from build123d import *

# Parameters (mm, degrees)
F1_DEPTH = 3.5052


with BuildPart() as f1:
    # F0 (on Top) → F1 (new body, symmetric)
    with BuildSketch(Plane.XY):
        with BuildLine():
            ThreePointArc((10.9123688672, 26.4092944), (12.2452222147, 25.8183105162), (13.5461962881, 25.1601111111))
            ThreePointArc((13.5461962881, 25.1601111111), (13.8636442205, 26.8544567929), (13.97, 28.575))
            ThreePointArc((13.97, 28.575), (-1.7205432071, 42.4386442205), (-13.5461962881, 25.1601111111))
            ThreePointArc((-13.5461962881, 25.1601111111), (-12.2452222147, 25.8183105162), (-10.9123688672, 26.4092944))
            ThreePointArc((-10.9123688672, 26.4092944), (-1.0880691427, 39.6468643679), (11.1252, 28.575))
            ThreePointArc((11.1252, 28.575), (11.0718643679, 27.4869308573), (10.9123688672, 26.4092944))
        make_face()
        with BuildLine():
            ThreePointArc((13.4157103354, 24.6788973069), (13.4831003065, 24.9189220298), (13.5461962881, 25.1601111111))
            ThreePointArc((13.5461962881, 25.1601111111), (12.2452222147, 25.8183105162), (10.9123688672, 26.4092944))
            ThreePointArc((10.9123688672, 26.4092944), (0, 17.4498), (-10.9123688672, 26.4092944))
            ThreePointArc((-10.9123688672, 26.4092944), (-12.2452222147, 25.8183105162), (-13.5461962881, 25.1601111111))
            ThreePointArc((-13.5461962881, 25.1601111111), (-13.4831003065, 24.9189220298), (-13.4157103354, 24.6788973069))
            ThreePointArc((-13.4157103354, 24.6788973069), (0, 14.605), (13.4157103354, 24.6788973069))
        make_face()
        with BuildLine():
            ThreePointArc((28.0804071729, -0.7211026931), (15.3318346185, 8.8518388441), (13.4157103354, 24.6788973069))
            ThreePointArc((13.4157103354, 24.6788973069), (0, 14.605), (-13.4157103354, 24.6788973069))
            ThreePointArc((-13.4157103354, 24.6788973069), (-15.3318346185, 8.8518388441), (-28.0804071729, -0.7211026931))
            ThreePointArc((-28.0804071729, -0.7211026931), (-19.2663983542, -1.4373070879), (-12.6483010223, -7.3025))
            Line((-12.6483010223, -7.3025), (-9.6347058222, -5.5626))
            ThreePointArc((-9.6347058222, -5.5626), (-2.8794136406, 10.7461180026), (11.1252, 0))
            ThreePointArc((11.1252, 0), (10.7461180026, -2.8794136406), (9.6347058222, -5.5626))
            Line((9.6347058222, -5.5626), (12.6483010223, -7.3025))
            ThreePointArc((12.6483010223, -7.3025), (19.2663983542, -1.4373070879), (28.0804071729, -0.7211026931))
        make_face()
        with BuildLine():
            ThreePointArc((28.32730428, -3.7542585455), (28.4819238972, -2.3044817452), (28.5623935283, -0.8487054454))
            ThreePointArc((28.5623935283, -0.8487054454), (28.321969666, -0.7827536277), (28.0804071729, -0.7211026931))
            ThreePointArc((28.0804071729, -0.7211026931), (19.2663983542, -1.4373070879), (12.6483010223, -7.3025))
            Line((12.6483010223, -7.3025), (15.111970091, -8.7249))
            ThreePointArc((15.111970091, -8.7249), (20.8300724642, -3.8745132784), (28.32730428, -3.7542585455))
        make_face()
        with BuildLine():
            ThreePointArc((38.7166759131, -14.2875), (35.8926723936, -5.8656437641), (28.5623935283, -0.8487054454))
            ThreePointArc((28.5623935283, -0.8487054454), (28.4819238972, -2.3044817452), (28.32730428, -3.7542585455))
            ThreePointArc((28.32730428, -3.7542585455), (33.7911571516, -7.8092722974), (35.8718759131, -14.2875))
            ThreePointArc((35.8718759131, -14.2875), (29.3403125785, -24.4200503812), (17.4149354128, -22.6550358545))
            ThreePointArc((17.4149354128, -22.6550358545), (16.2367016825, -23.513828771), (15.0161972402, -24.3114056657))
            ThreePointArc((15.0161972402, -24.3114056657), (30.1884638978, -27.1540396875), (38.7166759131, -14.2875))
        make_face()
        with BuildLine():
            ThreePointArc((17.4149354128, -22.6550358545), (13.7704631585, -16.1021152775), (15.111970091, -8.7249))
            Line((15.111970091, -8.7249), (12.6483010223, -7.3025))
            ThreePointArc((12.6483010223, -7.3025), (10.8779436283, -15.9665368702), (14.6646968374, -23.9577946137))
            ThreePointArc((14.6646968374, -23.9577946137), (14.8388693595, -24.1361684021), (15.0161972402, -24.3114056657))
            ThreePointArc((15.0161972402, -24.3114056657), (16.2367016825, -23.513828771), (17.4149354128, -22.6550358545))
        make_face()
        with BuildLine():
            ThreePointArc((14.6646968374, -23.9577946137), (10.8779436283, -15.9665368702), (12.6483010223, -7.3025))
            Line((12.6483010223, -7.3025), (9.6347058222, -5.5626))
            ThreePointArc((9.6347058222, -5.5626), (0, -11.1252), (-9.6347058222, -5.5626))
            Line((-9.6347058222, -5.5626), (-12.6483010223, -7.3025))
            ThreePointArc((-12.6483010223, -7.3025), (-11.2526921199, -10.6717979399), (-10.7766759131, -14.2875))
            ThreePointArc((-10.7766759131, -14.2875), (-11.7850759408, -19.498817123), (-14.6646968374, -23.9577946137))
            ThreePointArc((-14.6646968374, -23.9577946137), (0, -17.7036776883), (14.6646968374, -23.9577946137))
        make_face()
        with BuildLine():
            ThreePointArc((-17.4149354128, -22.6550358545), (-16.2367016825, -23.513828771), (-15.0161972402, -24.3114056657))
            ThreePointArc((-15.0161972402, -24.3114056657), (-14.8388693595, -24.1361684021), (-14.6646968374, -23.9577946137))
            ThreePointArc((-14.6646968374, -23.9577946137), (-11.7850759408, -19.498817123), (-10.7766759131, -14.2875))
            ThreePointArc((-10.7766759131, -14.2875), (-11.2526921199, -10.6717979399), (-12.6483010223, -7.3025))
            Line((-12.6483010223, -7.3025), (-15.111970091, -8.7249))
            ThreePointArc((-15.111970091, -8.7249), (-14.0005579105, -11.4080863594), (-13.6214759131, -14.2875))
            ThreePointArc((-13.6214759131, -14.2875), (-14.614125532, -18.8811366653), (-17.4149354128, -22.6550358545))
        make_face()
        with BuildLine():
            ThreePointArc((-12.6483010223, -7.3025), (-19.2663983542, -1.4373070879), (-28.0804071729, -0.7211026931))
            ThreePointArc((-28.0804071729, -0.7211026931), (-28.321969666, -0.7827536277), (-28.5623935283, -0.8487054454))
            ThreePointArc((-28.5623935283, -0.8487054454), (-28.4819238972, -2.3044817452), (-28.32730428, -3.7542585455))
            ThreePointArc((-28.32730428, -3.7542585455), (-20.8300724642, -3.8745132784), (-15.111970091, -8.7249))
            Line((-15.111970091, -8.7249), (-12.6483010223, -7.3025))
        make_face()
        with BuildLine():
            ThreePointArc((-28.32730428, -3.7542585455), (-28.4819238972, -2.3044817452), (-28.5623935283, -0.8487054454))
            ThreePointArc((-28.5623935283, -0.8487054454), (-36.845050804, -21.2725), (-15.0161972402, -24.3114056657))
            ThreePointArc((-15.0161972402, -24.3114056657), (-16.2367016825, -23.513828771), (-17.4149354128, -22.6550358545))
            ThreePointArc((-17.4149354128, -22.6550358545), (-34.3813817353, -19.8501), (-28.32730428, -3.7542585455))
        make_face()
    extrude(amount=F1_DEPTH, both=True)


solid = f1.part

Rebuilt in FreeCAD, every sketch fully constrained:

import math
import FreeCAD as App
import Part
import Sketcher
from FreeCAD import Vector
Q = App.Units.Quantity

doc = App.newDocument("Part")
body = doc.addObject("PartDesign::Body", "Body")

# Sketch on XY plane
sketch1 = body.newObject("Sketcher::SketchObject", "Sketch")
sketch1.AttachmentSupport = (doc.getObject("XY_Plane"), [""])
sketch1.MapMode = "FlatFace"
sketch1.addGeometry([
    Part.ArcOfCircle(Part.Circle(Vector(0, 28.575, 0), Vector(0, 0, 1), 13.97), math.radians(-14.149005), math.radians(0)),  # 0
    Part.ArcOfCircle(Part.Circle(Vector(0, 28.575, 0), Vector(0, 0, 1), 13.97), math.radians(0), math.radians(194.149005)),  # 1
    Part.ArcOfCircle(Part.Circle(Vector(0, 28.575, 0), Vector(0, 0, 1), 13.97), math.radians(-165.850995), math.radians(-163.805992)),  # 2
    Part.ArcOfCircle(Part.Circle(Vector(-32.929471, 19.011839, 0), Vector(0, 0, 1), 20.32), math.radians(-76.194008), math.radians(16.194008)),  # 3
    Part.ArcOfCircle(Part.Circle(Vector(-24.746676, -14.2875, 0), Vector(0, 0, 1), 13.97), math.radians(103.805992), math.radians(105.850995)),  # 4
    Part.ArcOfCircle(Part.Circle(Vector(-24.746676, -14.2875, 0), Vector(0, 0, 1), 13.97), math.radians(105.850995), math.radians(314.149005)),  # 5
    Part.ArcOfCircle(Part.Circle(Vector(-24.746676, -14.2875, 0), Vector(0, 0, 1), 13.97), math.radians(-45.850995), math.radians(-43.805992)),  # 6
    Part.ArcOfCircle(Part.Circle(Vector(0, -38.023678, 0), Vector(0, 0, 1), 20.32), math.radians(43.805992), math.radians(136.194008)),  # 7
    Part.ArcOfCircle(Part.Circle(Vector(24.746676, -14.2875, 0), Vector(0, 0, 1), 13.97), math.radians(-136.194008), math.radians(-134.149005)),  # 8
    Part.ArcOfCircle(Part.Circle(Vector(24.746676, -14.2875, 0), Vector(0, 0, 1), 13.97), math.radians(-134.149005), math.radians(0)),  # 9
    Part.ArcOfCircle(Part.Circle(Vector(24.746676, -14.2875, 0), Vector(0, 0, 1), 13.97), math.radians(0), math.radians(74.149005)),  # 10
    Part.ArcOfCircle(Part.Circle(Vector(24.746676, -14.2875, 0), Vector(0, 0, 1), 13.97), math.radians(74.149005), math.radians(76.194008)),  # 11
    Part.ArcOfCircle(Part.Circle(Vector(32.929471, 19.011839, 0), Vector(0, 0, 1), 20.32), math.radians(163.805992), math.radians(256.194008)),  # 12
    Part.ArcOfCircle(Part.Circle(Vector(0, 28.575, 0), Vector(0, 0, 1), 13.97), math.radians(-16.194008), math.radians(-14.149005)),  # 13
    Part.ArcOfCircle(Part.Circle(Vector(-24.746676, -14.2875, 0), Vector(0, 0, 1), 11.1252), math.radians(30), math.radians(108.774748)),  # 14
    Part.ArcOfCircle(Part.Circle(Vector(-24.746676, -14.2875, 0), Vector(0, 0, 1), 11.1252), math.radians(0), math.radians(30)),  # 15
    Part.ArcOfCircle(Part.Circle(Vector(-24.746676, -14.2875, 0), Vector(0, 0, 1), 11.1252), math.radians(-48.774748), math.radians(0)),  # 16
    Part.ArcOfCircle(Part.Circle(Vector(-24.746676, -14.2875, 0), Vector(0, 0, 1), 11.1252), math.radians(108.774748), math.radians(311.225252)),  # 17
    Part.ArcOfCircle(Part.Circle(Vector(0, 0, 0), Vector(0, 0, 1), 11.1252), math.radians(0), math.radians(210)),  # 18
    Part.ArcOfCircle(Part.Circle(Vector(0, 0, 0), Vector(0, 0, 1), 11.1252), math.radians(-30), math.radians(0)),  # 19
    Part.ArcOfCircle(Part.Circle(Vector(0, 0, 0), Vector(0, 0, 1), 11.1252), math.radians(-150), math.radians(-30)),  # 20
    Part.ArcOfCircle(Part.Circle(Vector(24.746676, -14.2875, 0), Vector(0, 0, 1), 11.1252), math.radians(0), math.radians(150)),  # 21
    Part.ArcOfCircle(Part.Circle(Vector(24.746676, -14.2875, 0), Vector(0, 0, 1), 11.1252), math.radians(-131.225252), math.radians(0)),  # 22
    Part.ArcOfCircle(Part.Circle(Vector(24.746676, -14.2875, 0), Vector(0, 0, 1), 11.1252), math.radians(150), math.radians(228.774748)),  # 23
    Part.ArcOfCircle(Part.Circle(Vector(0, 28.575, 0), Vector(0, 0, 1), 11.1252), math.radians(0), math.radians(191.225252)),  # 24
    Part.ArcOfCircle(Part.Circle(Vector(0, 28.575, 0), Vector(0, 0, 1), 11.1252), math.radians(-11.225252), math.radians(0)),  # 25
    Part.ArcOfCircle(Part.Circle(Vector(0, 28.575, 0), Vector(0, 0, 1), 11.1252), math.radians(-168.774748), math.radians(-11.225252)),  # 26
], False)
sketch1.addConstraint([
    Sketcher.Constraint("Tangent", 0, 2, 1, 1),
    Sketcher.Constraint("Tangent", 1, 2, 2, 1),
    Sketcher.Constraint("Tangent", 2, 2, 3, 2),
    Sketcher.Constraint("Tangent", 3, 1, 4, 1),
    Sketcher.Constraint("Tangent", 4, 2, 5, 1),
    Sketcher.Constraint("Tangent", 5, 2, 6, 1),
    Sketcher.Constraint("Tangent", 6, 2, 7, 2),
    Sketcher.Constraint("Tangent", 7, 1, 8, 1),
    Sketcher.Constraint("Tangent", 8, 2, 9, 1),
    Sketcher.Constraint("Tangent", 9, 2, 10, 1),
    Sketcher.Constraint("Tangent", 10, 2, 11, 1),
    Sketcher.Constraint("Tangent", 11, 2, 12, 2),
    Sketcher.Constraint("Tangent", 12, 1, 13, 1),
    Sketcher.Constraint("Tangent", 13, 2, 0, 1),
    Sketcher.Constraint("Tangent", 14, 1, 15, 2),
    Sketcher.Constraint("Tangent", 15, 1, 16, 2),
    Sketcher.Constraint("Tangent", 16, 1, 17, 2),
    Sketcher.Constraint("Tangent", 17, 1, 14, 2),
    Sketcher.Constraint("Tangent", 18, 1, 19, 2),
    Sketcher.Constraint("Tangent", 19, 1, 20, 2),
    Sketcher.Constraint("Tangent", 20, 1, 18, 2),
    Sketcher.Constraint("Tangent", 21, 1, 22, 2),
    Sketcher.Constraint("Tangent", 22, 1, 23, 2),
    Sketcher.Constraint("Tangent", 23, 1, 21, 2),
    Sketcher.Constraint("Tangent", 24, 1, 25, 2),
    Sketcher.Constraint("Tangent", 25, 1, 26, 2),
    Sketcher.Constraint("Tangent", 26, 1, 24, 2),
    Sketcher.Constraint("Coincident", 18, 3, -1, 1),
    Sketcher.Constraint("Coincident", 2, 3, 0, 3),
    Sketcher.Constraint("Coincident", 6, 3, 4, 3),
    Sketcher.Constraint("Coincident", 10, 3, 8, 3),
    Sketcher.Constraint("Coincident", 14, 3, 4, 3),
    Sketcher.Constraint("Coincident", 21, 3, 8, 3),
    Sketcher.Constraint("Coincident", 24, 3, 0, 3),
    Sketcher.Constraint("Equal", 2, 4),
    Sketcher.Constraint("Equal", 3, 7),
    Sketcher.Constraint("Equal", 6, 8),
    Sketcher.Constraint("Equal", 10, 11),
    Sketcher.Constraint("Equal", 7, 12),
    Sketcher.Constraint("Equal", 11, 13),
    Sketcher.Constraint("Equal", 14, 15),
    Sketcher.Constraint("Equal", 17, 18),
    Sketcher.Constraint("Equal", 20, 21),
    Sketcher.Constraint("Equal", 23, 24),
    Sketcher.Constraint("Symmetric", 4, 3, 8, 3, -2),
    Sketcher.Constraint("Symmetric", 1, 2, 13, 2, -2),
    Sketcher.Constraint("PointOnObject", 18, 1, -1),
    Sketcher.Constraint("Horizontal", 26, 3, 0, 2),
    Sketcher.Constraint("Horizontal", 5, 2, 8, 2),
    Sketcher.Constraint("Horizontal", 23, 3, 9, 2),
    Sketcher.Constraint("Horizontal", 4, 2, 10, 2),
    Sketcher.Constraint("Horizontal", 9, 2, 15, 1),
    Sketcher.Constraint("Horizontal", 19, 1, 20, 1),
    Sketcher.Constraint("Horizontal", 15, 1, 21, 1),
    Sketcher.Constraint("Horizontal", 16, 1, 22, 1),
    Sketcher.Constraint("Horizontal", 14, 1, 23, 1),
    Sketcher.Constraint("Horizontal", 0, 2, 24, 1),
    Sketcher.Constraint("Horizontal", 25, 1, 26, 1),
    Sketcher.Constraint("Radius", 3, Q("0.8 in")),
    Sketcher.Constraint("Radius", 0, Q("0.55 in")),
    Sketcher.Constraint("Radius", 14, Q("0.438 in")),
    Sketcher.Constraint("DistanceY", -1, 1, 0, 3, Q("1.125 in")),
    Sketcher.Constraint("DistanceY", 4, 3, -1, 1, Q("0.5625 in")),
    Sketcher.Constraint("DistanceY", 19, 1, -1, 1, Q("0.219 in")),
    Sketcher.Constraint("DistanceY", 5, 3, 14, 1, Q("0.219 in")),
    Sketcher.Constraint("DistanceX", 5, 2, 6, 2, 0.3515),
    Sketcher.Constraint("DistanceX", 3, 3, -1, 1, 32.929471),
    Sketcher.Constraint("DistanceY", -1, 1, 1, 2, 25.160111),
    Sketcher.Constraint("DistanceY", 17, 1, -1, 1, 3.754259),
    Sketcher.Constraint("DistanceX", -1, 1, 25, 1, 10.912369),
    Sketcher.Constraint("DistanceX", 16, 1, 5, 2, 2.398738),
    Sketcher.Constraint("DistanceX", 4, 2, 17, 1, 0.235089),
])
pad1 = body.newObject("PartDesign::Pad", "Pad")
pad1.Profile = sketch1
pad1.Length = Q("0.276 in")
pad1.Midplane = True

doc.recompute()
